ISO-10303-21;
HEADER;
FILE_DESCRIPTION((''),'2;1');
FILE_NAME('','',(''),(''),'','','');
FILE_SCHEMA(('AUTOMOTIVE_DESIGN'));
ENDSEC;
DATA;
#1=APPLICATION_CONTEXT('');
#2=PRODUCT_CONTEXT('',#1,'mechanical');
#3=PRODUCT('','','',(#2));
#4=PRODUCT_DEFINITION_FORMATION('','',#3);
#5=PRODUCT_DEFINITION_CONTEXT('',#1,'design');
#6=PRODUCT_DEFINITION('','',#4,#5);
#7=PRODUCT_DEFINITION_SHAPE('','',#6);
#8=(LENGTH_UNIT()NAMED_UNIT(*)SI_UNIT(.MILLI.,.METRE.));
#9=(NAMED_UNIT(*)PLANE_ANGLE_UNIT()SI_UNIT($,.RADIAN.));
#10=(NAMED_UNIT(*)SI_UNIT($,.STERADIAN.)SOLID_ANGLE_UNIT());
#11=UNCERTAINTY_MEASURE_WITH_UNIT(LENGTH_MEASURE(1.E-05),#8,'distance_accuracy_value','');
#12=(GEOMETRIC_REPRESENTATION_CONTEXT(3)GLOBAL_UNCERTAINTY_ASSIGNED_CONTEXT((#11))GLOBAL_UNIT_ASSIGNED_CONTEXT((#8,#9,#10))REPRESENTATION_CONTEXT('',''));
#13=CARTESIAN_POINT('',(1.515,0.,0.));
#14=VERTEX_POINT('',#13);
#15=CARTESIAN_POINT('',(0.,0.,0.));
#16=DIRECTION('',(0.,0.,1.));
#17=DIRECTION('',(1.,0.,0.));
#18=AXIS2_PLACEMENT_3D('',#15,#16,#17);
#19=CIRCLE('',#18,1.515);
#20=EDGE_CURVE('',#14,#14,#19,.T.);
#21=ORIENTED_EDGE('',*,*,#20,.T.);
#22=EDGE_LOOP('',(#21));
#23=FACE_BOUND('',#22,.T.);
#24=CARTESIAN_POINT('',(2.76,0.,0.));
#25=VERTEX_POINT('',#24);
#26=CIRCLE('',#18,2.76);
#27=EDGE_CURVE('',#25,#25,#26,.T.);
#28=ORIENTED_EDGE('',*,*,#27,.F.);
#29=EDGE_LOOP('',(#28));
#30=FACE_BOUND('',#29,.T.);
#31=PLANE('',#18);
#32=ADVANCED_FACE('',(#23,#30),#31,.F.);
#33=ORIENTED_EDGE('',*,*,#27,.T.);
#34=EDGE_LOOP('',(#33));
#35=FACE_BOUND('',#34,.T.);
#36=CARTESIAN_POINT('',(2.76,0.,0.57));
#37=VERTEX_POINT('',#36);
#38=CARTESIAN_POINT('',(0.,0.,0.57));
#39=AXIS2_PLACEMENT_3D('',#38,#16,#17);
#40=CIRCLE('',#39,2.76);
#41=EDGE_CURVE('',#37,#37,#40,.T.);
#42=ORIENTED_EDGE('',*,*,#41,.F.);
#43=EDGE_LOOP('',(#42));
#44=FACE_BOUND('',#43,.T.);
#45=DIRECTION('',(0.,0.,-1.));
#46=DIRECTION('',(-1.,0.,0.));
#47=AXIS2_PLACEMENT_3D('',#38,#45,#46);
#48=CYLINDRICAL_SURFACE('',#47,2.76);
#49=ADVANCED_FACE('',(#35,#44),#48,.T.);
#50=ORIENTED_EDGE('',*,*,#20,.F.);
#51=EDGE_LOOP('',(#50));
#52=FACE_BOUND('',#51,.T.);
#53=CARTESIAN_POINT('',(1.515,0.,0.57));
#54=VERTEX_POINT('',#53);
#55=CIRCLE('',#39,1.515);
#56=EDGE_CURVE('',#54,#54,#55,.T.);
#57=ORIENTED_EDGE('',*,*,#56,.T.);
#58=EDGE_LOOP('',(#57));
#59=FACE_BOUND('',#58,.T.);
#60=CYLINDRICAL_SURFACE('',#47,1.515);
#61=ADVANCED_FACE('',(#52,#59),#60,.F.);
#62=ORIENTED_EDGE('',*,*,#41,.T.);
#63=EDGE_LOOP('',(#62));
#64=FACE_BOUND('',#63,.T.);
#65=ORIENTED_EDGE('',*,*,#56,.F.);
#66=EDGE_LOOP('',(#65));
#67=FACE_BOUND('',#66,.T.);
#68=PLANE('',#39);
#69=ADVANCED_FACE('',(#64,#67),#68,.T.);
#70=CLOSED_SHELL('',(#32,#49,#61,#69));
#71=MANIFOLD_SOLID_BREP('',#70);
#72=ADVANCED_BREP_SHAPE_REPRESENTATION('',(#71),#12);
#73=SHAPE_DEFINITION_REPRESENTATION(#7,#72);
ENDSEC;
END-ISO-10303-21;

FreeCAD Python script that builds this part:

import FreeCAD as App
import Part
import Sketcher

doc = App.newDocument("Part")
body = doc.addObject("PartDesign::Body", "Body")

# Sketch on XY plane
sketch1 = body.newObject("Sketcher::SketchObject", "Sketch")
sketch1.AttachmentSupport = (doc.getObject("XY_Plane"), [""])
sketch1.MapMode = "FlatFace"
sketch1.addGeometry(Part.Circle(App.Vector(0, 0, 0), App.Vector(0, 0, 1), 2.76), False)
sketch1.addGeometry(Part.Circle(App.Vector(0, 0, 0), App.Vector(0, 0, 1), 1.515), False)
sketch1.addConstraint(Sketcher.Constraint("Coincident", 0, 3, -1, 1))
sketch1.addConstraint(Sketcher.Constraint("Coincident", 1, 3, -1, 1))
sketch1.addConstraint(Sketcher.Constraint("Diameter", 0, 5.52))
sketch1.addConstraint(Sketcher.Constraint("Diameter", 1, 3.03))
pad1 = body.newObject("PartDesign::Pad", "Pad")
pad1.Profile = sketch1
pad1.Length = 0.57

doc.recompute()
